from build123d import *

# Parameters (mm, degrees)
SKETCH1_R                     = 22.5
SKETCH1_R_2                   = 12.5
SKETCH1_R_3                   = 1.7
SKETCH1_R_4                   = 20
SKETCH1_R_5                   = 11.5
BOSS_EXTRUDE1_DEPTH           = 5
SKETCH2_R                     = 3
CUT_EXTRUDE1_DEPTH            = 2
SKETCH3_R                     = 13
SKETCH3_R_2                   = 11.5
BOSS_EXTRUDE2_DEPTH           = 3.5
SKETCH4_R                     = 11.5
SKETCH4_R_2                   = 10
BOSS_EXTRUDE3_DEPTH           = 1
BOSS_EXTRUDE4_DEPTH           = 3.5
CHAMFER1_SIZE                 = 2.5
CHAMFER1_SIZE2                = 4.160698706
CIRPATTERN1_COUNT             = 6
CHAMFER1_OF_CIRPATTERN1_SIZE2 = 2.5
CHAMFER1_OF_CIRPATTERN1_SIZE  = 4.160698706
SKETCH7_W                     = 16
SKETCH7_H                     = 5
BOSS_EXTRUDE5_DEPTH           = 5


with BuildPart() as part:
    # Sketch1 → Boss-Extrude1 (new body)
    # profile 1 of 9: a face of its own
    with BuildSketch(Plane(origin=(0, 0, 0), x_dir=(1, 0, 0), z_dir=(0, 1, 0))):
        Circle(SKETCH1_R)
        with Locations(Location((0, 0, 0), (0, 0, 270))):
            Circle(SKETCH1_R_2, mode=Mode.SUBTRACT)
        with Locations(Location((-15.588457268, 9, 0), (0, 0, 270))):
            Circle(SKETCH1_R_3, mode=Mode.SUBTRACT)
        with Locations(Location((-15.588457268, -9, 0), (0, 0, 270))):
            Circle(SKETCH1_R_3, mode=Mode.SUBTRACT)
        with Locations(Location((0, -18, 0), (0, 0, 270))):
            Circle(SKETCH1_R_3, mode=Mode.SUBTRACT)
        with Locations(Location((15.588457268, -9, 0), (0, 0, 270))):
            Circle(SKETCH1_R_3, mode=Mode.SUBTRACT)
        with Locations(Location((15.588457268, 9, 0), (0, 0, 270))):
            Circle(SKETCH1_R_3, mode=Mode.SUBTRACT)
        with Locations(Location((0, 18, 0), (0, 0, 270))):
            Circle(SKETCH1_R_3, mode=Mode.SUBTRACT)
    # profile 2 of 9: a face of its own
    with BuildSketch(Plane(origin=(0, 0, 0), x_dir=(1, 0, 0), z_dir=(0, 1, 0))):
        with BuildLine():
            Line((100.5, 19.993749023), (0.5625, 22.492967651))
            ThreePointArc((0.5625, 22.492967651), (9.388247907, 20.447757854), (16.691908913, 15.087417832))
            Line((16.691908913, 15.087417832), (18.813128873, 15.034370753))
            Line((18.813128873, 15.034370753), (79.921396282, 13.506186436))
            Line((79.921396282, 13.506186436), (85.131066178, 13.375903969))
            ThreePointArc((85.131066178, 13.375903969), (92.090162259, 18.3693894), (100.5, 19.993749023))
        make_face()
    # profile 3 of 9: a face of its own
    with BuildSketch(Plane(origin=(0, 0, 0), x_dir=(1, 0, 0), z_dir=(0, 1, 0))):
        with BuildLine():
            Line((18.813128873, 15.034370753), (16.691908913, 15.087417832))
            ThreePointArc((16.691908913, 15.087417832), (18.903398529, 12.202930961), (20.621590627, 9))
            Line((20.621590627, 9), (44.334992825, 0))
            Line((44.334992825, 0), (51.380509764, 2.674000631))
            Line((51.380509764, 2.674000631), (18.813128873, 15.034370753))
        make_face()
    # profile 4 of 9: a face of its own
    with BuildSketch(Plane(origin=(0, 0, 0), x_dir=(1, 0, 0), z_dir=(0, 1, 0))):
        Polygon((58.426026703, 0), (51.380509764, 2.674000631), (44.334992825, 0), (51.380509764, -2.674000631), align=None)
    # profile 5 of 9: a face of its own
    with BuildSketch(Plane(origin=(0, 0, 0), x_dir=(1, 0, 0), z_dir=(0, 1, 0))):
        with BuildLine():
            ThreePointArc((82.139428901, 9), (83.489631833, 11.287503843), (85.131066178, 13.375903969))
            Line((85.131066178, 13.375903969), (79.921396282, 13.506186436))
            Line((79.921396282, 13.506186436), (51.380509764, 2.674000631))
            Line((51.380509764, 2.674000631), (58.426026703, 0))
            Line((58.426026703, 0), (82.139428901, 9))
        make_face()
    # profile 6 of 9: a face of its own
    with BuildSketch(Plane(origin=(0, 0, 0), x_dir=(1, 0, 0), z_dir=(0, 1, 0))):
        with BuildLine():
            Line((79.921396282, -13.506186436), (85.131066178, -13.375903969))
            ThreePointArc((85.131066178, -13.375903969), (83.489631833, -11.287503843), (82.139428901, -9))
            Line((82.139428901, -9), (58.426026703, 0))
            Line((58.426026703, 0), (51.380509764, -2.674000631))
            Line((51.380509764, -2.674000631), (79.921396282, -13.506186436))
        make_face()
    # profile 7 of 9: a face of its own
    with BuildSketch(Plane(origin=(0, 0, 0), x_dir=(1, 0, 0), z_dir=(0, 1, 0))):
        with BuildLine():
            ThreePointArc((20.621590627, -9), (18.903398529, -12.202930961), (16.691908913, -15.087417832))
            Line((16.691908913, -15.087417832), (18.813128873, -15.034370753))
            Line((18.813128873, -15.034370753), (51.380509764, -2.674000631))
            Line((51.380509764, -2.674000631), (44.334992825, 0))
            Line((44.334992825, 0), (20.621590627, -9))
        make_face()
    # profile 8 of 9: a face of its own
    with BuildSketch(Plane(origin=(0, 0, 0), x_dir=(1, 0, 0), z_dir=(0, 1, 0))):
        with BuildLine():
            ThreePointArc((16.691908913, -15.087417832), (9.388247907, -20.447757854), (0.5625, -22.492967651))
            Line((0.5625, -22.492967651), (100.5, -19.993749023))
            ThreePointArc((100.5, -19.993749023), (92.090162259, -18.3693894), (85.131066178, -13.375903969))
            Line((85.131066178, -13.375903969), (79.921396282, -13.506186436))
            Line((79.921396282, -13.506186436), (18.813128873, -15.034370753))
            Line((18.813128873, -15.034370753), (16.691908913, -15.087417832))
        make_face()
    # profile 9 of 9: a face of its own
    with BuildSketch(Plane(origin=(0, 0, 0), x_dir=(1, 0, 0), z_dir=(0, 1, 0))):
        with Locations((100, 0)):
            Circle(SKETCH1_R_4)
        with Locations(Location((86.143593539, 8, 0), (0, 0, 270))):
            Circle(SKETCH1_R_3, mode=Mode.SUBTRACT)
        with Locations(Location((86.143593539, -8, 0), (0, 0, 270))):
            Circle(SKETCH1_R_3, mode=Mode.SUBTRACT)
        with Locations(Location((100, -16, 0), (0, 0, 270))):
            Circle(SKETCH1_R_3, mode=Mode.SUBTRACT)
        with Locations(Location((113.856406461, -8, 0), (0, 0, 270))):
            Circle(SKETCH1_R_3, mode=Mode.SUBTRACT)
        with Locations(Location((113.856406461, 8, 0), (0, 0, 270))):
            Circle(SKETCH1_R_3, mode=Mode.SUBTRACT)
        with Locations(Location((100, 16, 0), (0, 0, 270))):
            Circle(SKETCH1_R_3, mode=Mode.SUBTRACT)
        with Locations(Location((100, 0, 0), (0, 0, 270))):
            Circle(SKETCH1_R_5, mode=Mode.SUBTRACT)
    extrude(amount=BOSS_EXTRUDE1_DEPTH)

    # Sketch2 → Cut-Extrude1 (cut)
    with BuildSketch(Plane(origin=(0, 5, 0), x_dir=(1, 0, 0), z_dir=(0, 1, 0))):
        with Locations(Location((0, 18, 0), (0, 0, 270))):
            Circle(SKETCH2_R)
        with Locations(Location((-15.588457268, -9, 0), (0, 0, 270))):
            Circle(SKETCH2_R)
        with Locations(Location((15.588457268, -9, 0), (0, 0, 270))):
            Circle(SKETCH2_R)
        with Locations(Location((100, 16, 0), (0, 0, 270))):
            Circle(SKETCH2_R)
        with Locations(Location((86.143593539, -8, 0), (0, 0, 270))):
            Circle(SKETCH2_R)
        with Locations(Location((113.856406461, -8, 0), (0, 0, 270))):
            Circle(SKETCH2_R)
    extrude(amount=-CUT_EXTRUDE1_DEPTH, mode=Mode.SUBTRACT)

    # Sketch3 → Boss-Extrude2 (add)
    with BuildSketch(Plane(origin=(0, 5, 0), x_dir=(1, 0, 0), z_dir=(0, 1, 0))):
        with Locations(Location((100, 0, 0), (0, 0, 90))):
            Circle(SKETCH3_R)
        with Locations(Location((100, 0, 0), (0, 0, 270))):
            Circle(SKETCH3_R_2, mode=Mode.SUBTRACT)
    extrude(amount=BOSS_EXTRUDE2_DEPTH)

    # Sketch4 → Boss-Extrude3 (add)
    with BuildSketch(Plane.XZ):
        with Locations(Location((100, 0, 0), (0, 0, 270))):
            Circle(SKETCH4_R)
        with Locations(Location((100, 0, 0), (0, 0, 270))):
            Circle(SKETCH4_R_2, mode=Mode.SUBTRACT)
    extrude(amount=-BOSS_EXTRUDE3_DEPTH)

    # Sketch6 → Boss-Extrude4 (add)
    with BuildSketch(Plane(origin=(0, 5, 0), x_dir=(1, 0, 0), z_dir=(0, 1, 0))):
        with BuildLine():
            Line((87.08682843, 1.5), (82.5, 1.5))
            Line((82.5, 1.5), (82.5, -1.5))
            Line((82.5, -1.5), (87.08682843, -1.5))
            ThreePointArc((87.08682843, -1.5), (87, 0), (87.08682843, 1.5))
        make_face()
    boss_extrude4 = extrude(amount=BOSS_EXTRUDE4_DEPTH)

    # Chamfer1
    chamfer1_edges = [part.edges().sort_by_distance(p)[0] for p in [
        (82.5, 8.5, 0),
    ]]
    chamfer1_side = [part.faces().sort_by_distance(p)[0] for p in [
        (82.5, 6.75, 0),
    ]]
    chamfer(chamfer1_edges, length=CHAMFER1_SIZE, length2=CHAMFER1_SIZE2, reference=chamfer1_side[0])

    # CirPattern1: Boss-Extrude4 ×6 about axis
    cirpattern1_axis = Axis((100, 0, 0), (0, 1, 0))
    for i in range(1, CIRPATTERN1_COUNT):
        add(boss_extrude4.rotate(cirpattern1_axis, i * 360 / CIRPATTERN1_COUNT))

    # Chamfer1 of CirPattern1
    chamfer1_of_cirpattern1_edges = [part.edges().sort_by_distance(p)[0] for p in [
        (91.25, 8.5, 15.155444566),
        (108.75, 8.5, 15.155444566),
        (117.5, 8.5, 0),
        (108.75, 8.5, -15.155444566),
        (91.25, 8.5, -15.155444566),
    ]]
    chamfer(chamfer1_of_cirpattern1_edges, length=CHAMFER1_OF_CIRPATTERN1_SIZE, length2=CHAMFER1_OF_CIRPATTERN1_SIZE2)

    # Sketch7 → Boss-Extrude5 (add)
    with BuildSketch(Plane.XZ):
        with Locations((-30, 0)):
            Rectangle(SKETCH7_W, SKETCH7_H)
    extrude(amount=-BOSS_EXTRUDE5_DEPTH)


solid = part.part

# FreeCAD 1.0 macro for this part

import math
import FreeCAD as App
import Part
import Sketcher
from FreeCAD import Vector


def edges_at(feature, points):
    """Names of the edges that pass closest to the given points."""
    edges = feature.Shape.Edges
    near = lambda p: min(range(len(edges)), key=lambda i: edges[i].distToShape(Part.Vertex(*p))[0])
    return sorted({f"Edge{near(p) + 1}" for p in points})


def add_polygon(sketch, points):
    """Adds a closed chain of lines whose ends are joined by coincident constraints."""
    first, n = sketch.GeometryCount, len(points)
    for a, b in zip(points, points[1:] + points[:1]):
        sketch.addGeometry(Part.LineSegment(App.Vector(*a, 0), App.Vector(*b, 0)), False)
    for i in range(n):
        sketch.addConstraint(Sketcher.Constraint("Coincident", first + i, 2, first + (i + 1) % n, 1))

doc = App.newDocument("Part")
params = doc.addObject("Spreadsheet::Sheet", "Params")
for row, (alias, value) in enumerate([
    ("sketch1_diameter", "25 mm"),
    ("sketch1_diameter2", "23 mm"),
    ("sketch1_radius", "20 mm"),
    ("sketch1_diameter3", "3.4 mm"),
    ("sketch1_radius2", "22.5 mm"),
    ("pad1_length", "5 mm"),
    ("sketch2_diameter", "6 mm"),
    ("pocket1_length", "2 mm"),
    ("sketch3_diameter", "26 mm"),
    ("sketch3_diameter2", "23 mm"),
    ("pad2_length", "3.5 mm"),
    ("sketch4_diameter", "23 mm"),
    ("sketch4_diameter2", "20 mm"),
    ("pad3_length", "1 mm"),
    ("sketch5_radius", "13 mm"),
    ("sketch5_height", "3 mm"),
    ("pad4_length", "3.5 mm"),
    ("chamfer_size", "2.5 mm"),
    ("chamfer_size2", "4.160699 mm"),
    ("chamfer2_size", "4.160699 mm"),
    ("chamfer2_size2", "2.5 mm"),
    ("sketch6_width", "16 mm"),
    ("sketch6_height", "5 mm"),
    ("pad5_length", "5 mm"),
], start=1):
    params.set(f"A{row}", alias)
    params.set(f"B{row}", "=" + value)
    params.setAlias(f"B{row}", alias)

body = doc.addObject("PartDesign::Body", "Body")

# Sketch on XZ plane
sketch1 = body.newObject("Sketcher::SketchObject", "Sketch")
sketch1.AttachmentSupport = (doc.getObject("XZ_Plane"), [""])
sketch1.MapMode = "FlatFace"
sketch1.addGeometry(Part.ArcOfCircle(Part.Circle(Vector(0, 0, 0), Vector(0, 0, 1), 22.5), math.radians(89), math.radians(271)), False)  # 0
sketch1.addGeometry(Part.LineSegment(Vector(0.6, 22.5, 0), Vector(100.5, 20, 0)), False)  # 1
sketch1.addGeometry(Part.ArcOfCircle(Part.Circle(Vector(100, 0, 0), Vector(0, 0, 1), 20), math.radians(-89), math.radians(89)), False)  # 2
sketch1.addGeometry(Part.LineSegment(Vector(100.5, -20, 0), Vector(0.6, -22.5, 0)), False)  # 3
sketch1.addGeometry(Part.LineSegment(Vector(20.6, -9, 0), Vector(44.3, 0, 0)), False)  # 4
sketch1.addGeometry(Part.LineSegment(Vector(44.3, 0, 0), Vector(20.6, 9, 0)), False)  # 5
sketch1.addGeometry(Part.ArcOfCircle(Part.Circle(Vector(0, 0, 0), Vector(0, 0, 1), 22.5), math.radians(-24), math.radians(24)), False)  # 6
sketch1.addGeometry(Part.Circle(Vector(0, 18, 0), Vector(0, 0, 1), 1.7), False)  # 7
sketch1.addGeometry(Part.Circle(Vector(-15.6, 9, 0), Vector(0, 0, 1), 1.7), False)  # 8
sketch1.addGeometry(Part.Circle(Vector(15.6, 9, 0), Vector(0, 0, 1), 1.7), False)  # 9
sketch1.addGeometry(Part.Circle(Vector(-15.6, -9, 0), Vector(0, 0, 1), 1.7), False)  # 10
sketch1.addGeometry(Part.Circle(Vector(0, -18, 0), Vector(0, 0, 1), 1.7), False)  # 11
sketch1.addGeometry(Part.Circle(Vector(0, 0, 0), Vector(0, 0, 1), 12.5), False)  # 12
sketch1.addGeometry(Part.Circle(Vector(15.6, -9, 0), Vector(0, 0, 1), 1.7), False)  # 13
add_polygon(sketch1, [(51.4, -2.7), (18.8, -15), (79.9, -13.5)])  # lines 14-16
add_polygon(sketch1, [(79.9, 13.5), (18.8, 15), (51.4, 2.7)])  # lines 17-19
sketch1.addGeometry(Part.Circle(Vector(100, -16, 0), Vector(0, 0, 1), 1.7), False)  # 20
sketch1.addGeometry(Part.ArcOfCircle(Part.Circle(Vector(100, 0, 0), Vector(0, 0, 1), 20), math.radians(153), math.radians(207)), False)  # 21
sketch1.addGeometry(Part.LineSegment(Vector(82.1, 9, 0), Vector(58.4, 0, 0)), False)  # 22
sketch1.addGeometry(Part.LineSegment(Vector(58.4, 0, 0), Vector(82.1, -9, 0)), False)  # 23
sketch1.addGeometry(Part.Circle(Vector(113.9, -8, 0), Vector(0, 0, 1), 1.7), False)  # 24
sketch1.addGeometry(Part.Circle(Vector(86.1, 8, 0), Vector(0, 0, 1), 1.7), False)  # 25
sketch1.addGeometry(Part.Circle(Vector(100, 16, 0), Vector(0, 0, 1), 1.7), False)  # 26
sketch1.addGeometry(Part.Circle(Vector(113.9, 8, 0), Vector(0, 0, 1), 1.7), False)  # 27
sketch1.addGeometry(Part.Circle(Vector(86.1, -8, 0), Vector(0, 0, 1), 1.7), False)  # 28
sketch1.addGeometry(Part.Circle(Vector(100, 0, 0), Vector(0, 0, 1), 11.5), False)  # 29
sketch1.addConstraint([
    Sketcher.Constraint("Tangent", 0, 1, 1, 1),
    Sketcher.Constraint("Tangent", 1, 2, 2, 2),
    Sketcher.Constraint("Tangent", 2, 1, 3, 1),
    Sketcher.Constraint("Tangent", 3, 2, 0, 2),
    Sketcher.Constraint("Coincident", 4, 2, 5, 1),
    Sketcher.Constraint("Coincident", 5, 2, 6, 2),
    Sketcher.Constraint("Coincident", 6, 1, 4, 1),
    Sketcher.Constraint("Coincident", 21, 1, 22, 1),
    Sketcher.Constraint("Coincident", 22, 2, 23, 1),
    Sketcher.Constraint("Coincident", 23, 2, 21, 2),
    Sketcher.Constraint("Coincident", 0, 3, -1, 1),
    Sketcher.Constraint("Coincident", 6, 3, -1, 1),
    Sketcher.Constraint("Coincident", 12, 3, -1, 1),
    Sketcher.Constraint("Coincident", 21, 3, 2, 3),
    Sketcher.Constraint("Coincident", 29, 3, 2, 3),
    Sketcher.Constraint("Equal", 0, 6),
    Sketcher.Constraint("Equal", 7, 8),
    Sketcher.Constraint("Equal", 8, 9),
    Sketcher.Constraint("Equal", 9, 10),
    Sketcher.Constraint("Equal", 10, 11),
    Sketcher.Constraint("Equal", 11, 13),
    Sketcher.Constraint("Equal", 13, 20),
    Sketcher.Constraint("Equal", 2, 21),
    Sketcher.Constraint("Equal", 20, 24),
    Sketcher.Constraint("Equal", 24, 25),
    Sketcher.Constraint("Equal", 25, 26),
    Sketcher.Constraint("Equal", 26, 27),
    Sketcher.Constraint("Equal", 27, 28),
    Sketcher.Constraint("Symmetric", 9, 3, 10, 3, -1, 1),
    Sketcher.Constraint("Symmetric", 7, 3, 11, 3, -1, 1),
    Sketcher.Constraint("Symmetric", 8, 3, 13, 3, -1, 1),
    Sketcher.Constraint("Symmetric", 8, 3, 9, 3, -2),
    Sketcher.Constraint("Symmetric", 20, 3, 26, 3, -1),
    Sketcher.Constraint("Symmetric", 24, 3, 27, 3, -1),
    Sketcher.Constraint("Symmetric", 25, 3, 28, 3, -1),
    Sketcher.Constraint("Symmetric", 14, 2, 17, 2, -1),
    Sketcher.Constraint("Symmetric", 16, 2, 18, 2, -1),
    Sketcher.Constraint("Symmetric", 15, 2, 19, 2, -1),
    Sketcher.Constraint("Symmetric", 21, 1, 23, 2, -1),
    Sketcher.Constraint("PointOnObject", 7, 3, -2),
    Sketcher.Constraint("PointOnObject", 4, 2, -1),
    Sketcher.Constraint("PointOnObject", 22, 2, -1),
    Sketcher.Constraint("Parallel", 4, 14),
    Sketcher.Constraint("Parallel", 3, 15),
    Sketcher.Constraint("Parallel", 5, 16),
    Sketcher.Constraint("Parallel", 16, 18),
    Sketcher.Constraint("Parallel", 19, 22),
    Sketcher.Constraint("Horizontal", 25, 3, 27, 3),
    Sketcher.Constraint("Horizontal", 9, 3, 5, 2),
    Sketcher.Constraint("Horizontal", 5, 2, 21, 1),
    Sketcher.Constraint("Vertical", 2, 3, 20, 3),
    Sketcher.Constraint("Diameter", 12, 25.0),
    Sketcher.Constraint("Diameter", 29, 23.0),
    Sketcher.Constraint("Radius", 2, 20.0),
    Sketcher.Constraint("Diameter", 7, 3.4),
    Sketcher.Constraint("Radius", 0, 22.5),
    Sketcher.Constraint("DistanceX", -1, 1, 2, 3, 100.0),
    Sketcher.Constraint("DistanceY", -1, 1, 7, 3, 18.0),
    Sketcher.Constraint("DistanceY", -1, 1, 8, 3, 9.0),
    Sketcher.Constraint("DistanceY", 20, 3, -1, 1, 16.0),
    Sketcher.Constraint("DistanceY", 24, 3, -1, 1, 8.0),
    Sketcher.Constraint("DistanceY", 16, 2, -1, 1, 2.674001),
    Sketcher.Constraint("DistanceX", 4, 2, 25, 3, 41.808601),
    Sketcher.Constraint("Distance", 4, 25.363861),
    Sketcher.Constraint("Distance", 14, 34.834079),
    Sketcher.Constraint("DistanceX", -1, 1, 14, 2, 18.813129),
    Sketcher.Constraint("DistanceX", 13, 3, 24, 3, 98.267949),
    Sketcher.Constraint("DistanceX", 13, 3, 14, 2, 3.224672),
])
sketch1.setExpression("Constraints[57]", "Params.sketch1_diameter")
sketch1.setExpression("Constraints[58]", "Params.sketch1_diameter2")
sketch1.setExpression("Constraints[59]", "Params.sketch1_radius")
sketch1.setExpression("Constraints[60]", "Params.sketch1_diameter3")
sketch1.setExpression("Constraints[61]", "Params.sketch1_radius2")
pad1 = body.newObject("PartDesign::Pad", "Pad")
pad1.Profile = sketch1
pad1.setExpression("Length", "Params.pad1_length")
pad1.Reversed = True

# Sketch on XZ plane
sketch2 = body.newObject("Sketcher::SketchObject", "Sketch001")
sketch2.AttachmentSupport = (doc.getObject("XZ_Plane"), [""])
sketch2.MapMode = "FlatFace"
sketch2.AttachmentOffset = App.Placement(Vector(0, 0, -5), App.Rotation())
sketch2.addGeometry([
    Part.Circle(Vector(0, -18, 0), Vector(0, 0, 1), 3),  # 0
    Part.Circle(Vector(-15.6, 9, 0), Vector(0, 0, 1), 3),  # 1
    Part.Circle(Vector(15.6, 9, 0), Vector(0, 0, 1), 3),  # 2
    Part.Circle(Vector(100, -16, 0), Vector(0, 0, 1), 3),  # 3
    Part.Circle(Vector(86.1, 8, 0), Vector(0, 0, 1), 3),  # 4
    Part.Circle(Vector(113.9, 8, 0), Vector(0, 0, 1), 3),  # 5
], False)
sketch2.addConstraint([
    Sketcher.Constraint("Equal", 0, 1),
    Sketcher.Constraint("Equal", 1, 2),
    Sketcher.Constraint("Equal", 2, 3),
    Sketcher.Constraint("Equal", 3, 4),
    Sketcher.Constraint("Equal", 4, 5),
    Sketcher.Constraint("Symmetric", 1, 3, 2, 3, -2),
    Sketcher.Constraint("PointOnObject", 0, 3, -2),
    Sketcher.Constraint("Horizontal", 4, 3, 5, 3),
    Sketcher.Constraint("Diameter", 0, 6.0),
    Sketcher.Constraint("DistanceY", 0, 3, -1, 1, 18.0),
    Sketcher.Constraint("DistanceY", -1, 1, 1, 3, 9.0),
    Sketcher.Constraint("DistanceX", -1, 1, 3, 3, 100.0),
    Sketcher.Constraint("DistanceY", 3, 3, -1, 1, 16.0),
    Sketcher.Constraint("DistanceY", -1, 1, 4, 3, 8.0),
    Sketcher.Constraint("DistanceX", 1, 3, 4, 3, 101.732051),
    Sketcher.Constraint("DistanceX", 2, 3, 5, 3, 98.267949),
    Sketcher.Constraint("DistanceX", 1, 3, -1, 1, 15.588457),
])
sketch2.setExpression("Constraints[8]", "Params.sketch2_diameter")
pocket1 = body.newObject("PartDesign::Pocket", "Pocket")
pocket1.Profile = sketch2
pocket1.setExpression("Length", "Params.pocket1_length")
pocket1.Reversed = True

# Sketch on XZ plane
sketch3 = body.newObject("Sketcher::SketchObject", "Sketch002")
sketch3.AttachmentSupport = (doc.getObject("XZ_Plane"), [""])
sketch3.MapMode = "FlatFace"
sketch3.AttachmentOffset = App.Placement(Vector(0, 0, -5), App.Rotation())
sketch3.addGeometry([
    Part.Circle(Vector(100, 0, 0), Vector(0, 0, 1), 13),
    Part.Circle(Vector(100, 0, 0), Vector(0, 0, 1), 12),
], False)
sketch3.addConstraint([
    Sketcher.Constraint("Coincident", 1, 3, 0, 3),
    Sketcher.Constraint("PointOnObject", 0, 3, -1),
    Sketcher.Constraint("Diameter", 0, 26.0),
    Sketcher.Constraint("Diameter", 1, 23.0),
    Sketcher.Constraint("DistanceX", -1, 1, 0, 3, 100.0),
])
sketch3.setExpression("Constraints[2]", "Params.sketch3_diameter")
sketch3.setExpression("Constraints[3]", "Params.sketch3_diameter2")
pad2 = body.newObject("PartDesign::Pad", "Pad001")
pad2.Profile = sketch3
pad2.setExpression("Length", "Params.pad2_length")
pad2.Reversed = True

# Sketch on XZ plane
sketch4 = body.newObject("Sketcher::SketchObject", "Sketch003")
sketch4.AttachmentSupport = (doc.getObject("XZ_Plane"), [""])
sketch4.MapMode = "FlatFace"
sketch4.addGeometry([
    Part.Circle(Vector(100, 0, 0), Vector(0, 0, 1), 12),
    Part.Circle(Vector(100, 0, 0), Vector(0, 0, 1), 10),
], False)
sketch4.addConstraint([
    Sketcher.Constraint("Coincident", 1, 3, 0, 3),
    Sketcher.Constraint("PointOnObject", 0, 3, -1),
    Sketcher.Constraint("Diameter", 0, 23.0),
    Sketcher.Constraint("Diameter", 1, 20.0),
    Sketcher.Constraint("DistanceX", -1, 1, 0, 3, 100.0),
])
sketch4.setExpression("Constraints[2]", "Params.sketch4_diameter")
sketch4.setExpression("Constraints[3]", "Params.sketch4_diameter2")
pad3 = body.newObject("PartDesign::Pad", "Pad002")
pad3.Profile = sketch4
pad3.setExpression("Length", "Params.pad3_length")
pad3.Reversed = True

# Sketch on XZ plane
sketch5 = body.newObject("Sketcher::SketchObject", "Sketch004")
sketch5.AttachmentSupport = (doc.getObject("XZ_Plane"), [""])
sketch5.MapMode = "FlatFace"
sketch5.AttachmentOffset = App.Placement(Vector(0, 0, -5), App.Rotation())
sketch5.addGeometry([
    Part.LineSegment(Vector(87.1, -1.5, 0), Vector(82.5, -1.5, 0)),
    Part.LineSegment(Vector(82.5, -1.5, 0), Vector(82.5, 1.5, 0)),
    Part.LineSegment(Vector(82.5, 1.5, 0), Vector(87.1, 1.5, 0)),
    Part.ArcOfCircle(Part.Circle(Vector(100, 0, 0), Vector(0, 0, 1), 13), math.radians(173.37), math.radians(186.63)),
], False)
sketch5.addConstraint([
    Sketcher.Constraint("Coincident", 0, 2, 1, 1),
    Sketcher.Constraint("Coincident", 1, 2, 2, 1),
    Sketcher.Constraint("Coincident", 2, 2, 3, 1),
    Sketcher.Constraint("Coincident", 3, 2, 0, 1),
    Sketcher.Constraint("Horizontal", 0),
    Sketcher.Constraint("Vertical", 1),
    Sketcher.Constraint("Horizontal", 2),
    Sketcher.Constraint("Symmetric", 2, 2, 3, 2, -1),
    Sketcher.Constraint("Radius", 3, 13.0),
    Sketcher.Constraint("DistanceY", 1, 1, 1, 2, 3.0),
    Sketcher.Constraint("DistanceX", -1, 1, 3, 3, 100.0),
    Sketcher.Constraint("DistanceX", -1, 1, 0, 2, 82.5),
])
sketch5.setExpression("Constraints[8]", "Params.sketch5_radius")
sketch5.setExpression("Constraints[9]", "Params.sketch5_height")
pad4 = body.newObject("PartDesign::Pad", "Pad003")
pad4.Profile = sketch5
pad4.setExpression("Length", "Params.pad4_length")
pad4.Reversed = True
doc.recompute()

chamfer = body.newObject("PartDesign::Chamfer", "Chamfer")
chamfer.Base = (pad4, edges_at(pad4, [(82.5, 8.5, 0)]))
chamfer.ChamferType = "Two distances"
chamfer.setExpression("Size", "Params.chamfer_size")
chamfer.setExpression("Size2", "Params.chamfer_size2")
doc.recompute()

datumline = body.newObject("PartDesign::Line", "DatumLine")
datumline.Placement = App.Placement(Vector(100, 0, 0), App.Rotation(Vector(0, 0, 1), Vector(0, 1, 0)))
polarpattern = body.newObject("PartDesign::PolarPattern", "PolarPattern")
polarpattern.Originals = [pad4]
polarpattern.Axis = (datumline, [""])
polarpattern.Angle = 360
polarpattern.Occurrences = 6
body.Tip = polarpattern
doc.recompute()

chamfer2 = body.newObject("PartDesign::Chamfer", "Chamfer001")
chamfer2.Base = (polarpattern, edges_at(polarpattern, [
    (91.25, 8.5, 15.155),
    (108.75, 8.5, 15.155),
    (117.5, 8.5, 0),
    (108.75, 8.5, -15.155),
    (91.25, 8.5, -15.155),
]))
chamfer2.ChamferType = "Two distances"
chamfer2.setExpression("Size", "Params.chamfer2_size")
chamfer2.setExpression("Size2", "Params.chamfer2_size2")
chamfer2.FlipDirection = True

# Sketch on XZ plane
sketch6 = body.newObject("Sketcher::SketchObject", "Sketch005")
sketch6.AttachmentSupport = (doc.getObject("XZ_Plane"), [""])
sketch6.MapMode = "FlatFace"
add_polygon(sketch6, [(-38, 2), (-38, -2), (-22, -2), (-22, 2)])  # lines 0-3
sketch6.addConstraint([
    Sketcher.Constraint("Vertical", 0),
    Sketcher.Constraint("Horizontal", 1),
    Sketcher.Constraint("Vertical", 2),
    Sketcher.Constraint("Horizontal", 3),
    Sketcher.Constraint("DistanceX", 1, 1, 1, 2, 16.0),
    Sketcher.Constraint("DistanceY", 0, 2, 0, 1, 5.0),
    Sketcher.Constraint("DistanceX", 0, 2, -1, 1, 38.0),
    Sketcher.Constraint("DistanceY", 0, 2, -1, 1, 2.5),
])
sketch6.setExpression("Constraints[8]", "Params.sketch6_width")
sketch6.setExpression("Constraints[9]", "Params.sketch6_height")
pad5 = body.newObject("PartDesign::Pad", "Pad004")
pad5.Profile = sketch6
pad5.setExpression("Length", "Params.pad5_length")
pad5.Reversed = True

doc.recompute()
